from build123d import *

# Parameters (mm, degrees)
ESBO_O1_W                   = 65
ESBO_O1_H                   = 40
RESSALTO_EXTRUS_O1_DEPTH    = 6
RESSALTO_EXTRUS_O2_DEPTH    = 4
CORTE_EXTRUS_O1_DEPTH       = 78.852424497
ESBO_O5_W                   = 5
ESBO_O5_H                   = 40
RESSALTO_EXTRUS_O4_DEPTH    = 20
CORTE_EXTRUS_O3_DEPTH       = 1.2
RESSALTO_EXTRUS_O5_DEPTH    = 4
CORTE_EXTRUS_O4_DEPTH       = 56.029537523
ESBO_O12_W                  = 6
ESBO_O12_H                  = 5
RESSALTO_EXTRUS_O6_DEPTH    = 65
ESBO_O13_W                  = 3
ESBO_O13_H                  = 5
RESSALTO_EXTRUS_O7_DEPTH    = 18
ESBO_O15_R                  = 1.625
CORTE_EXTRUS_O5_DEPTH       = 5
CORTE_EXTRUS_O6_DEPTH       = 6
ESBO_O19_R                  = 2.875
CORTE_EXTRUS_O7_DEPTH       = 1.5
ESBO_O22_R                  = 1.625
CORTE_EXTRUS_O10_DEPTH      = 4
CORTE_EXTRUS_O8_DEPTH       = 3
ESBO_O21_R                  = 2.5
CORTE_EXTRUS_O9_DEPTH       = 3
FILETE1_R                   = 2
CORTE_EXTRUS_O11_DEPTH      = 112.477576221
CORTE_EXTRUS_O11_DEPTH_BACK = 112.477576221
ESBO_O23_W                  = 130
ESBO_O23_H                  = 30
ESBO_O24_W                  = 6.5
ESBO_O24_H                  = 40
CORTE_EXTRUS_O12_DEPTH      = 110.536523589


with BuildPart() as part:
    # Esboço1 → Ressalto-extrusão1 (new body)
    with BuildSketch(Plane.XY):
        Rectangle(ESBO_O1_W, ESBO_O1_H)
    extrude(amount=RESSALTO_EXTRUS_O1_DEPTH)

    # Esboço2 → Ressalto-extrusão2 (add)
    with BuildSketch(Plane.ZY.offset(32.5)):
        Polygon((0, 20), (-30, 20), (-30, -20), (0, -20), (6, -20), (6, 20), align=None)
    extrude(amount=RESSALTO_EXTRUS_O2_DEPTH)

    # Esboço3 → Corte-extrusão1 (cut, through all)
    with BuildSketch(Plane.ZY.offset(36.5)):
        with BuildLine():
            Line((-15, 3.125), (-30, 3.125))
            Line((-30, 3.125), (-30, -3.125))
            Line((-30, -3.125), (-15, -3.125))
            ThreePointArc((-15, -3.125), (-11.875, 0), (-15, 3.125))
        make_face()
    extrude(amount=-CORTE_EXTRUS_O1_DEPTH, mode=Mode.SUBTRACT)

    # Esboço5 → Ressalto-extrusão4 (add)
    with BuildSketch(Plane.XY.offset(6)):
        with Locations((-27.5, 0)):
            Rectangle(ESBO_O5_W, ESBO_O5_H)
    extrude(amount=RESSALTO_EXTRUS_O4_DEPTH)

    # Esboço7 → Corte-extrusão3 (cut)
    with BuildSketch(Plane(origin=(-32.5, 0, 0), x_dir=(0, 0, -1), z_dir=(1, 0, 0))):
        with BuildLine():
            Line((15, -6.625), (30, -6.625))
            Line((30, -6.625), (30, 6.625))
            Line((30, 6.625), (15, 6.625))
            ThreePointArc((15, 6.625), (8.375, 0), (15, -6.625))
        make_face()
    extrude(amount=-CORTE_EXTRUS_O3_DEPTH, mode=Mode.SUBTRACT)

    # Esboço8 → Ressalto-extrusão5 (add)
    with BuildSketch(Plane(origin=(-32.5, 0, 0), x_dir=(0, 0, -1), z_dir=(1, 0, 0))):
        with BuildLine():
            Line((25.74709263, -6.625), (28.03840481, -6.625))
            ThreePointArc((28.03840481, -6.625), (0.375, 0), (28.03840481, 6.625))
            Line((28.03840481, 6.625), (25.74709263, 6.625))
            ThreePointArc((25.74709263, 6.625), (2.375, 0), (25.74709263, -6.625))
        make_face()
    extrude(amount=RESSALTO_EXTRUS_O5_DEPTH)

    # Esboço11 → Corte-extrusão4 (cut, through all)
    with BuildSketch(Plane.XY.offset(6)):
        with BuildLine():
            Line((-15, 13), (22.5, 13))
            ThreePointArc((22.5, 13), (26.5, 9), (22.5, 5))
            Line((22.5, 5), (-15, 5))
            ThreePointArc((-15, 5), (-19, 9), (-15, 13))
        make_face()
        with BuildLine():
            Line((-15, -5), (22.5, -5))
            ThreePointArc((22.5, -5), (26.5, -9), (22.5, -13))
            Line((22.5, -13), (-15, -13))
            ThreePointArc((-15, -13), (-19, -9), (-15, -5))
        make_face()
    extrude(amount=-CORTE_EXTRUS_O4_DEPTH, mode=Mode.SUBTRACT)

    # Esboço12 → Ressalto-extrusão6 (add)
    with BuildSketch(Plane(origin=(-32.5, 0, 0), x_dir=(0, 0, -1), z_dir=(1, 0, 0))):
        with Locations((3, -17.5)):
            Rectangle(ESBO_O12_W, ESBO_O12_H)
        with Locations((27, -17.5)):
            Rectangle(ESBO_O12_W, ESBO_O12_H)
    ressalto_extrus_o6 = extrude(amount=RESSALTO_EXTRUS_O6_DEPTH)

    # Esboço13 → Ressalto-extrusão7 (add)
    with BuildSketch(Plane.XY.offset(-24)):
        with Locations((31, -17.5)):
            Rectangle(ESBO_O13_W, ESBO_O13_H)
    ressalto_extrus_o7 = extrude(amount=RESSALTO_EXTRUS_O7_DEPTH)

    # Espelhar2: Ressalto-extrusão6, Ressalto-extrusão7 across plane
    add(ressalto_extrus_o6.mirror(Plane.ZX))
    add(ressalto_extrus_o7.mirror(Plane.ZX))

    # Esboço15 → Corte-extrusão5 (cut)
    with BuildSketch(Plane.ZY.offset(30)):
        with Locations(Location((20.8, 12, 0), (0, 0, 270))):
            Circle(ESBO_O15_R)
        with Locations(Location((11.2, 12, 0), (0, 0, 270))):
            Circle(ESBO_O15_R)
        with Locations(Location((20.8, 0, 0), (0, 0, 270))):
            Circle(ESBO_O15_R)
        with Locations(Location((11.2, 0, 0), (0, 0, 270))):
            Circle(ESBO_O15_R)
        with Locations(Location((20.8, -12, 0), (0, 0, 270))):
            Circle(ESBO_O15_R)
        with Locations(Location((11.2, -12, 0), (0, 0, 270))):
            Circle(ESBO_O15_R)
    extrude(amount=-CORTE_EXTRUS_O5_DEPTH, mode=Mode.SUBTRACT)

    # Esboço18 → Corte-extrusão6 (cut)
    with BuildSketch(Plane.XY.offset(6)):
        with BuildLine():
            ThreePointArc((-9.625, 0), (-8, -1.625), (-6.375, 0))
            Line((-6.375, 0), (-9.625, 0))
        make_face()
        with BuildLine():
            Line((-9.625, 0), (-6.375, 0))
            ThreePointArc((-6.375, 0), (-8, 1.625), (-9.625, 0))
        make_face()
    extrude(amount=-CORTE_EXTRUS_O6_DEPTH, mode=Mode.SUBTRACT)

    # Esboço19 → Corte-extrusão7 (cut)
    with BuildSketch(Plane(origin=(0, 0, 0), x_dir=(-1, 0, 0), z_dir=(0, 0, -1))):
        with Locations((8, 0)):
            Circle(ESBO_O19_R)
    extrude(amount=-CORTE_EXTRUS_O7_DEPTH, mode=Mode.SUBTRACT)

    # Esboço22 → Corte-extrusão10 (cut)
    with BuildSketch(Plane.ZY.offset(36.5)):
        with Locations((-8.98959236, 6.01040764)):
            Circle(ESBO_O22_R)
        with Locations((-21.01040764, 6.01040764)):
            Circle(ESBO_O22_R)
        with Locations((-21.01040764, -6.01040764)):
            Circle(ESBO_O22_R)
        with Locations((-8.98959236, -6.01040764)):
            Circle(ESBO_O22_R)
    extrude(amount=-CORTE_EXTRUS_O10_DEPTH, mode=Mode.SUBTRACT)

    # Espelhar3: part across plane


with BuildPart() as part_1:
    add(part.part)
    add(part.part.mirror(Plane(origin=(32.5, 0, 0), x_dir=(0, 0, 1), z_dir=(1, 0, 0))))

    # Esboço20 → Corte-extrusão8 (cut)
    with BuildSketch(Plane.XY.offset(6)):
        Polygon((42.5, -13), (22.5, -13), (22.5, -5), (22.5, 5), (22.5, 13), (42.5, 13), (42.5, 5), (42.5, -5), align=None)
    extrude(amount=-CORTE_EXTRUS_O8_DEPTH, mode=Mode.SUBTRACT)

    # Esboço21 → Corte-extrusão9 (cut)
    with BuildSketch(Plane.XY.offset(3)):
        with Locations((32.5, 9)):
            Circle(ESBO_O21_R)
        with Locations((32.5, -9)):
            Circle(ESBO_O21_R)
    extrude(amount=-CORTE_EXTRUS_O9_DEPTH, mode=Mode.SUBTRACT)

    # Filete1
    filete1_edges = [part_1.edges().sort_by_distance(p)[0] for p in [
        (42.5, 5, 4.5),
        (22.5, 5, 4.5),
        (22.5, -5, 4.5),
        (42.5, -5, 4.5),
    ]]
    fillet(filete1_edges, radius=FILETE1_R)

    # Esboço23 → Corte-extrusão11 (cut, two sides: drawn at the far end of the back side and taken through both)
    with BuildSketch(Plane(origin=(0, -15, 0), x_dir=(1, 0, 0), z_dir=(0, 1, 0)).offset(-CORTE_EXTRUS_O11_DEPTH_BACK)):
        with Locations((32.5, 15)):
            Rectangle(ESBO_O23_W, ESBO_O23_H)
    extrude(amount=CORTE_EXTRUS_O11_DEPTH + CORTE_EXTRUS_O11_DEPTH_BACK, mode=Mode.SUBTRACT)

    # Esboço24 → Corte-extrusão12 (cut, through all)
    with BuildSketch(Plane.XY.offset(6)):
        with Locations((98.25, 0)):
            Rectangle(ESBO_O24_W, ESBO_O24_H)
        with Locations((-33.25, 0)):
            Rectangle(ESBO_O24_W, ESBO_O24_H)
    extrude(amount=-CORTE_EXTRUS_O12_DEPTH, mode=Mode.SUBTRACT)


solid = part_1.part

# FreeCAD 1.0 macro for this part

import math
import FreeCAD as App
import Part
import Sketcher


def edges_at(feature, points):
    """Names of the edges that pass closest to the given points."""
    edges = feature.Shape.Edges
    near = lambda p: min(range(len(edges)), key=lambda i: edges[i].distToShape(Part.Vertex(*p))[0])
    return sorted({f"Edge{near(p) + 1}" for p in points})


def add_polygon(sketch, points):
    """Adds a closed chain of lines whose ends are joined by coincident constraints."""
    first, n = sketch.GeometryCount, len(points)
    for a, b in zip(points, points[1:] + points[:1]):
        sketch.addGeometry(Part.LineSegment(App.Vector(*a, 0), App.Vector(*b, 0)), False)
    for i in range(n):
        sketch.addConstraint(Sketcher.Constraint("Coincident", first + i, 2, first + (i + 1) % n, 1))

doc = App.newDocument("Part")
params = doc.addObject("Spreadsheet::Sheet", "Params")
for row, (alias, value) in enumerate([
    ("sketch1_width", "65 mm"),
    ("sketch1_height", "40 mm"),
    ("pad1_length", "6 mm"),
    ("sketch2_width", "40 mm"),
    ("sketch2_height", "36 mm"),
    ("pad2_length", "4 mm"),
    ("sketch3_height", "15 mm"),
    ("sketch4_width", "5 mm"),
    ("sketch4_height", "40 mm"),
    ("pad3_length", "20 mm"),
    ("sketch5_height", "15 mm"),
    ("pocket2_length", "1.2 mm"),
    ("pad4_length", "4 mm"),
    ("sketch7_radius", "4 mm"),
    ("sketch7_width", "37.5 mm"),
    ("sketch8_width", "5 mm"),
    ("sketch8_height", "6 mm"),
    ("pad5_length", "65 mm"),
    ("sketch9_width", "3 mm"),
    ("sketch9_height", "5 mm"),
    ("pad6_length", "18 mm"),
    ("sketch10_diameter", "3.25 mm"),
    ("pocket4_length", "5 mm"),
    ("sketch11_diameter", "3.25 mm"),
    ("pocket5_length", "6 mm"),
    ("sketch12_diameter", "5.75 mm"),
    ("pocket6_length", "1.5 mm"),
    ("sketch13_diameter", "3.25 mm"),
    ("pocket7_length", "4 mm"),
    ("sketch14_width", "20 mm"),
    ("sketch14_height", "26 mm"),
    ("pocket8_length", "3 mm"),
    ("sketch15_diameter", "5 mm"),
    ("pocket9_length", "3 mm"),
    ("fillet_radius", "2 mm"),
    ("sketch16_width", "130 mm"),
    ("sketch16_height", "30 mm"),
    ("sketch17_height", "40 mm"),
    ("sketch17_width", "6.5 mm"),
], start=1):
    params.set(f"A{row}", alias)
    params.set(f"B{row}", "=" + value)
    params.setAlias(f"B{row}", alias)

body = doc.addObject("PartDesign::Body", "Body")

# Sketch on XY plane
sketch1 = body.newObject("Sketcher::SketchObject", "Sketch")
sketch1.AttachmentSupport = (doc.getObject("XY_Plane"), [""])
sketch1.MapMode = "FlatFace"
add_polygon(sketch1, [(-32, 20), (-32, -20), (32, -20), (32, 20)])  # lines 0-3
sketch1.addConstraint(Sketcher.Constraint("Vertical", 0))
sketch1.addConstraint(Sketcher.Constraint("Horizontal", 1))
sketch1.addConstraint(Sketcher.Constraint("Vertical", 2))
sketch1.addConstraint(Sketcher.Constraint("Horizontal", 3))
sketch1.addConstraint(Sketcher.Constraint("Symmetric", 0, 2, 2, 2, -1, 1))
sketch1.addConstraint(Sketcher.Constraint("DistanceX", 1, 1, 1, 2, 65.0))
sketch1.addConstraint(Sketcher.Constraint("DistanceY", 0, 2, 0, 1, 40.0))
sketch1.setExpression("Constraints[9]", "Params.sketch1_width")
sketch1.setExpression("Constraints[10]", "Params.sketch1_height")
pad1 = body.newObject("PartDesign::Pad", "Pad")
pad1.Profile = sketch1
pad1.setExpression("Length", "Params.pad1_length")

# Sketch on YZ plane
sketch2 = body.newObject("Sketcher::SketchObject", "Sketch001")
sketch2.AttachmentSupport = (doc.getObject("YZ_Plane"), [""])
sketch2.MapMode = "FlatFace"
sketch2.AttachmentOffset = App.Placement(App.Vector(0, 0, -32.5), App.Rotation())
add_polygon(sketch2, [(20, -30), (-20, -30), (-20, 6), (20, 6)])  # lines 0-3
sketch2.addConstraint(Sketcher.Constraint("Horizontal", 0))
sketch2.addConstraint(Sketcher.Constraint("Vertical", 1))
sketch2.addConstraint(Sketcher.Constraint("Horizontal", 2))
sketch2.addConstraint(Sketcher.Constraint("Vertical", 3))
sketch2.addConstraint(Sketcher.Constraint("DistanceX", 0, 2, 0, 1, 40.0))
sketch2.addConstraint(Sketcher.Constraint("DistanceY", 1, 1, 1, 2, 36.0))
sketch2.addConstraint(Sketcher.Constraint("DistanceX", 0, 2, -1, 1, 20.0))
sketch2.addConstraint(Sketcher.Constraint("DistanceY", 0, 2, -1, 1, 30.0))
sketch2.setExpression("Constraints[8]", "Params.sketch2_width")
sketch2.setExpression("Constraints[9]", "Params.sketch2_height")
pad2 = body.newObject("PartDesign::Pad", "Pad001")
pad2.Profile = sketch2
pad2.setExpression("Length", "Params.pad2_length")
pad2.Reversed = True

# Sketch on YZ plane
sketch3 = body.newObject("Sketcher::SketchObject", "Sketch002")
sketch3.AttachmentSupport = (doc.getObject("YZ_Plane"), [""])
sketch3.MapMode = "FlatFace"
sketch3.AttachmentOffset = App.Placement(App.Vector(0, 0, -36.5), App.Rotation())
sketch3.addGeometry(Part.LineSegment(App.Vector(3.1, -15, 0), App.Vector(3.1, -30, 0)), False)
sketch3.addGeometry(Part.LineSegment(App.Vector(3.1, -30, 0), App.Vector(-3.1, -30, 0)), False)
sketch3.addGeometry(Part.LineSegment(App.Vector(-3.1, -30, 0), App.Vector(-3.1, -15, 0)), False)
sketch3.addGeometry(Part.ArcOfCircle(Part.Circle(App.Vector(0, -15, 0), App.Vector(0, 0, 1), 3.1), math.radians(0), math.radians(180)), False)
sketch3.addConstraint(Sketcher.Constraint("Coincident", 0, 2, 1, 1))
sketch3.addConstraint(Sketcher.Constraint("Coincident", 1, 2, 2, 1))
sketch3.addConstraint(Sketcher.Constraint("Tangent", 2, 2, 3, 2))
sketch3.addConstraint(Sketcher.Constraint("Tangent", 3, 1, 0, 1))
sketch3.addConstraint(Sketcher.Constraint("Vertical", 0))
sketch3.addConstraint(Sketcher.Constraint("Horizontal", 1))
sketch3.addConstraint(Sketcher.Constraint("Vertical", 2))
sketch3.addConstraint(Sketcher.Constraint("PointOnObject", 3, 3, -2))
sketch3.addConstraint(Sketcher.Constraint("DistanceY", 0, 2, 0, 1, 15.0))
sketch3.addConstraint(Sketcher.Constraint("DistanceY", 3, 3, -1, 1, 15.0))
sketch3.addConstraint(Sketcher.Constraint("Radius", 3, 3.125))
sketch3.setExpression("Constraints[8]", "Params.sketch3_height")
pocket1 = body.newObject("PartDesign::Pocket", "Pocket")
pocket1.Profile = sketch3
pocket1.Type = "ThroughAll"
pocket1.Reversed = True

# Sketch on XY plane
sketch4 = body.newObject("Sketcher::SketchObject", "Sketch003")
sketch4.AttachmentSupport = (doc.getObject("XY_Plane"), [""])
sketch4.MapMode = "FlatFace"
sketch4.AttachmentOffset = App.Placement(App.Vector(0, 0, 6), App.Rotation())
add_polygon(sketch4, [(-30, 20), (-30, -20), (-25, -20), (-25, 20)])  # lines 0-3
sketch4.addConstraint(Sketcher.Constraint("Vertical", 0))
sketch4.addConstraint(Sketcher.Constraint("Horizontal", 1))
sketch4.addConstraint(Sketcher.Constraint("Vertical", 2))
sketch4.addConstraint(Sketcher.Constraint("Horizontal", 3))
sketch4.addConstraint(Sketcher.Constraint("DistanceX", 1, 1, 1, 2, 5.0))
sketch4.addConstraint(Sketcher.Constraint("DistanceY", 0, 2, 0, 1, 40.0))
sketch4.addConstraint(Sketcher.Constraint("DistanceX", 0, 2, -1, 1, 30.0))
sketch4.addConstraint(Sketcher.Constraint("DistanceY", 0, 2, -1, 1, 20.0))
sketch4.setExpression("Constraints[8]", "Params.sketch4_width")
sketch4.setExpression("Constraints[9]", "Params.sketch4_height")
pad3 = body.newObject("PartDesign::Pad", "Pad002")
pad3.Profile = sketch4
pad3.setExpression("Length", "Params.pad3_length")

# Sketch on YZ plane
sketch5 = body.newObject("Sketcher::SketchObject", "Sketch004")
sketch5.AttachmentSupport = (doc.getObject("YZ_Plane"), [""])
sketch5.MapMode = "FlatFace"
sketch5.AttachmentOffset = App.Placement(App.Vector(0, 0, -32.5), App.Rotation())
sketch5.addGeometry(Part.LineSegment(App.Vector(-7, -15, 0), App.Vector(-7, -30, 0)), False)
sketch5.addGeometry(Part.LineSegment(App.Vector(-7, -30, 0), App.Vector(7, -30, 0)), False)
sketch5.addGeometry(Part.LineSegment(App.Vector(7, -30, 0), App.Vector(7, -15, 0)), False)
sketch5.addGeometry(Part.ArcOfCircle(Part.Circle(App.Vector(0, -15, 0), App.Vector(0, 0, 1), 7), math.radians(0), math.radians(180)), False)
sketch5.addConstraint(Sketcher.Constraint("Coincident", 0, 2, 1, 1))
sketch5.addConstraint(Sketcher.Constraint("Coincident", 1, 2, 2, 1))
sketch5.addConstraint(Sketcher.Constraint("Tangent", 2, 2, 3, 1))
sketch5.addConstraint(Sketcher.Constraint("Tangent", 3, 2, 0, 1))
sketch5.addConstraint(Sketcher.Constraint("Vertical", 0))
sketch5.addConstraint(Sketcher.Constraint("Horizontal", 1))
sketch5.addConstraint(Sketcher.Constraint("Vertical", 2))
sketch5.addConstraint(Sketcher.Constraint("PointOnObject", 3, 3, -2))
sketch5.addConstraint(Sketcher.Constraint("DistanceY", 0, 2, 0, 1, 15.0))
sketch5.addConstraint(Sketcher.Constraint("DistanceY", 3, 3, -1, 1, 15.0))
sketch5.addConstraint(Sketcher.Constraint("Radius", 3, 6.625))
sketch5.setExpression("Constraints[8]", "Params.sketch5_height")
pocket2 = body.newObject("PartDesign::Pocket", "Pocket001")
pocket2.Profile = sketch5
pocket2.setExpression("Length", "Params.pocket2_length")

# Sketch on YZ plane
sketch6 = body.newObject("Sketcher::SketchObject", "Sketch005")
sketch6.AttachmentSupport = (doc.getObject("YZ_Plane"), [""])
sketch6.MapMode = "FlatFace"
sketch6.AttachmentOffset = App.Placement(App.Vector(0, 0, -32.5), App.Rotation())
sketch6.addGeometry(Part.LineSegment(App.Vector(-6.6, -28, 0), App.Vector(-6.6, -25.7, 0)), False)
sketch6.addGeometry(Part.ArcOfCircle(Part.Circle(App.Vector(0, -15, 0), App.Vector(0, 0, 1), 12.6), math.radians(-58), math.radians(238)), False)
sketch6.addGeometry(Part.LineSegment(App.Vector(6.6, -25.7, 0), App.Vector(6.6, -28, 0)), False)
sketch6.addGeometry(Part.ArcOfCircle(Part.Circle(App.Vector(0, -15, 0), App.Vector(0, 0, 1), 14.6), math.radians(-63), math.radians(243)), False)
sketch6.addConstraint(Sketcher.Constraint("Coincident", 0, 2, 1, 2))
sketch6.addConstraint(Sketcher.Constraint("Coincident", 1, 1, 2, 1))
sketch6.addConstraint(Sketcher.Constraint("Coincident", 2, 2, 3, 1))
sketch6.addConstraint(Sketcher.Constraint("Coincident", 3, 2, 0, 1))
sketch6.addConstraint(Sketcher.Constraint("Vertical", 0))
sketch6.addConstraint(Sketcher.Constraint("Vertical", 2))
sketch6.addConstraint(Sketcher.Constraint("Coincident", 3, 3, 1, 3))
sketch6.addConstraint(Sketcher.Constraint("Symmetric", 0, 2, 1, 1, -2))
sketch6.addConstraint(Sketcher.Constraint("DistanceY", 1, 3, -1, 1, 15.0))
sketch6.addConstraint(Sketcher.Constraint("Radius", 1, 12.625))
sketch6.addConstraint(Sketcher.Constraint("Radius", 3, 14.625))
sketch6.addConstraint(Sketcher.Constraint("DistanceX", 0, 2, 1, 1, 13.25))
pad4 = body.newObject("PartDesign::Pad", "Pad003")
pad4.Profile = sketch6
pad4.setExpression("Length", "Params.pad4_length")

# Sketch on XY plane
sketch7 = body.newObject("Sketcher::SketchObject", "Sketch006")
sketch7.AttachmentSupport = (doc.getObject("XY_Plane"), [""])
sketch7.MapMode = "FlatFace"
sketch7.AttachmentOffset = App.Placement(App.Vector(0, 0, 6), App.Rotation())
sketch7.addGeometry(Part.LineSegment(App.Vector(22.5, 13, 0), App.Vector(-15, 13, 0)), False)
sketch7.addGeometry(Part.ArcOfCircle(Part.Circle(App.Vector(-15, 9, 0), App.Vector(0, 0, 1), 4), math.radians(90), math.radians(270)), False)
sketch7.addGeometry(Part.LineSegment(App.Vector(-15, 5, 0), App.Vector(22.5, 5, 0)), False)
sketch7.addGeometry(Part.ArcOfCircle(Part.Circle(App.Vector(22.5, 9, 0), App.Vector(0, 0, 1), 4), math.radians(-90), math.radians(90)), False)
sketch7.addGeometry(Part.LineSegment(App.Vector(22.5, -5, 0), App.Vector(-15, -5, 0)), False)
sketch7.addGeometry(Part.ArcOfCircle(Part.Circle(App.Vector(-15, -9, 0), App.Vector(0, 0, 1), 4), math.radians(90), math.radians(270)), False)
sketch7.addGeometry(Part.LineSegment(App.Vector(-15, -13, 0), App.Vector(22.5, -13, 0)), False)
sketch7.addGeometry(Part.ArcOfCircle(Part.Circle(App.Vector(22.5, -9, 0), App.Vector(0, 0, 1), 4), math.radians(-90), math.radians(90)), False)
sketch7.addConstraint(Sketcher.Constraint("Tangent", 0, 2, 1, 1))
sketch7.addConstraint(Sketcher.Constraint("Tangent", 1, 2, 2, 1))
sketch7.addConstraint(Sketcher.Constraint("Tangent", 2, 2, 3, 1))
sketch7.addConstraint(Sketcher.Constraint("Tangent", 3, 2, 0, 1))
sketch7.addConstraint(Sketcher.Constraint("Tangent", 4, 2, 5, 1))
sketch7.addConstraint(Sketcher.Constraint("Tangent", 5, 2, 6, 1))
sketch7.addConstraint(Sketcher.Constraint("Tangent", 6, 2, 7, 1))
sketch7.addConstraint(Sketcher.Constraint("Tangent", 7, 2, 4, 1))
sketch7.addConstraint(Sketcher.Constraint("Horizontal", 0))
sketch7.addConstraint(Sketcher.Constraint("Horizontal", 2))
sketch7.addConstraint(Sketcher.Constraint("Horizontal", 4))
sketch7.addConstraint(Sketcher.Constraint("Horizontal", 6))
sketch7.addConstraint(Sketcher.Constraint("Equal", 3, 5))
sketch7.addConstraint(Sketcher.Constraint("Symmetric", 1, 3, 5, 3, -1))
sketch7.addConstraint(Sketcher.Constraint("Vertical", 3, 3, 7, 3))
sketch7.addConstraint(Sketcher.Constraint("Radius", 1, 4.0))
sketch7.addConstraint(Sketcher.Constraint("DistanceX", 0, 2, 0, 1, 37.5))
sketch7.addConstraint(Sketcher.Constraint("DistanceX", 1, 3, -1, 1, 15.0))
sketch7.addConstraint(Sketcher.Constraint("DistanceY", -1, 1, 1, 3, 9.0))
sketch7.setExpression("Constraints[15]", "Params.sketch7_radius")
sketch7.setExpression("Constraints[16]", "Params.sketch7_width")
pocket3 = body.newObject("PartDesign::Pocket", "Pocket002")
pocket3.Profile = sketch7
pocket3.Type = "ThroughAll"

# Sketch on YZ plane
sketch8 = body.newObject("Sketcher::SketchObject", "Sketch007")
sketch8.AttachmentSupport = (doc.getObject("YZ_Plane"), [""])
sketch8.MapMode = "FlatFace"
sketch8.AttachmentOffset = App.Placement(App.Vector(0, 0, -32.5), App.Rotation())
add_polygon(sketch8, [(-15, 0), (-20, 0), (-20, -6), (-15, -6)])  # lines 0-3
add_polygon(sketch8, [(-15, -24), (-20, -24), (-20, -30), (-15, -30)])  # lines 4-7
sketch8.addConstraint(Sketcher.Constraint("Horizontal", 0))
sketch8.addConstraint(Sketcher.Constraint("Vertical", 1))
sketch8.addConstraint(Sketcher.Constraint("Horizontal", 2))
sketch8.addConstraint(Sketcher.Constraint("Vertical", 3))
sketch8.addConstraint(Sketcher.Constraint("Horizontal", 4))
sketch8.addConstraint(Sketcher.Constraint("Vertical", 5))
sketch8.addConstraint(Sketcher.Constraint("Horizontal", 6))
sketch8.addConstraint(Sketcher.Constraint("Vertical", 7))
sketch8.addConstraint(Sketcher.Constraint("PointOnObject", 0, 2, -1))
sketch8.addConstraint(Sketcher.Constraint("Vertical", 1, 2, 4, 2))
sketch8.addConstraint(Sketcher.Constraint("Vertical", 3, 2, 6, 2))
sketch8.addConstraint(Sketcher.Constraint("Equal", 3, 5))
sketch8.addConstraint(Sketcher.Constraint("DistanceX", 0, 2, 0, 1, 5.0))
sketch8.addConstraint(Sketcher.Constraint("DistanceY", 1, 2, 1, 1, 6.0))
sketch8.addConstraint(Sketcher.Constraint("DistanceX", 0, 2, -1, 1, 20.0))
sketch8.addConstraint(Sketcher.Constraint("DistanceY", 4, 2, -1, 1, 24.0))
sketch8.setExpression("Constraints[20]", "Params.sketch8_width")
sketch8.setExpression("Constraints[21]", "Params.sketch8_height")
pad5 = body.newObject("PartDesign::Pad", "Pad004")
pad5.Profile = sketch8
pad5.setExpression("Length", "Params.pad5_length")

# Sketch on XY plane
sketch9 = body.newObject("Sketcher::SketchObject", "Sketch008")
sketch9.AttachmentSupport = (doc.getObject("XY_Plane"), [""])
sketch9.MapMode = "FlatFace"
sketch9.AttachmentOffset = App.Placement(App.Vector(0, 0, -24), App.Rotation())
add_polygon(sketch9, [(29.5, -15), (29.5, -20), (32.5, -20), (32.5, -15)])  # lines 0-3
sketch9.addConstraint(Sketcher.Constraint("Vertical", 0))
sketch9.addConstraint(Sketcher.Constraint("Horizontal", 1))
sketch9.addConstraint(Sketcher.Constraint("Vertical", 2))
sketch9.addConstraint(Sketcher.Constraint("Horizontal", 3))
sketch9.addConstraint(Sketcher.Constraint("DistanceX", 1, 1, 1, 2, 3.0))
sketch9.addConstraint(Sketcher.Constraint("DistanceY", 0, 2, 0, 1, 5.0))
sketch9.addConstraint(Sketcher.Constraint("DistanceY", 0, 2, -1, 1, 20.0))
sketch9.addConstraint(Sketcher.Constraint("DistanceX", -1, 1, 0, 2, 29.5))
sketch9.setExpression("Constraints[8]", "Params.sketch9_width")
sketch9.setExpression("Constraints[9]", "Params.sketch9_height")
pad6 = body.newObject("PartDesign::Pad", "Pad005")
pad6.Profile = sketch9
pad6.setExpression("Length", "Params.pad6_length")
doc.recompute()

mirrored = body.newObject("PartDesign::Mirrored", "Mirrored")
mirrored.Originals = [pad5, pad6]
mirrored.MirrorPlane = (doc.getObject("XZ_Plane"), [""])
body.Tip = mirrored

# Sketch on YZ plane
sketch10 = body.newObject("Sketcher::SketchObject", "Sketch009")
sketch10.AttachmentSupport = (doc.getObject("YZ_Plane"), [""])
sketch10.MapMode = "FlatFace"
sketch10.AttachmentOffset = App.Placement(App.Vector(0, 0, -30), App.Rotation())
sketch10.addGeometry(Part.Circle(App.Vector(12, 20.8, 0), App.Vector(0, 0, 1), 1.6), False)
sketch10.addGeometry(Part.Circle(App.Vector(12, 11.2, 0), App.Vector(0, 0, 1), 1.6), False)
sketch10.addGeometry(Part.Circle(App.Vector(0, 20.8, 0), App.Vector(0, 0, 1), 1.6), False)
sketch10.addGeometry(Part.Circle(App.Vector(0, 11.2, 0), App.Vector(0, 0, 1), 1.6), False)
sketch10.addGeometry(Part.Circle(App.Vector(-12, 20.8, 0), App.Vector(0, 0, 1), 1.6), False)
sketch10.addGeometry(Part.Circle(App.Vector(-12, 11.2, 0), App.Vector(0, 0, 1), 1.6), False)
sketch10.addConstraint(Sketcher.Constraint("Equal", 0, 1))
sketch10.addConstraint(Sketcher.Constraint("Equal", 1, 2))
sketch10.addConstraint(Sketcher.Constraint("Equal", 2, 3))
sketch10.addConstraint(Sketcher.Constraint("Equal", 3, 4))
sketch10.addConstraint(Sketcher.Constraint("Equal", 4, 5))
sketch10.addConstraint(Sketcher.Constraint("Symmetric", 0, 3, 4, 3, -2))
sketch10.addConstraint(Sketcher.Constraint("Symmetric", 1, 3, 5, 3, -2))
sketch10.addConstraint(Sketcher.Constraint("PointOnObject", 2, 3, -2))
sketch10.addConstraint(Sketcher.Constraint("PointOnObject", 3, 3, -2))
sketch10.addConstraint(Sketcher.Constraint("Horizontal", 0, 3, 2, 3))
sketch10.addConstraint(Sketcher.Constraint("Horizontal", 1, 3, 3, 3))
sketch10.addConstraint(Sketcher.Constraint("Vertical", 0, 3, 1, 3))
sketch10.addConstraint(Sketcher.Constraint("Diameter", 0, 3.25))
sketch10.addConstraint(Sketcher.Constraint("DistanceX", -1, 1, 0, 3, 12.0))
sketch10.addConstraint(Sketcher.Constraint("DistanceY", -1, 1, 0, 3, 20.8))
sketch10.addConstraint(Sketcher.Constraint("DistanceY", -1, 1, 1, 3, 11.2))
sketch10.setExpression("Constraints[12]", "Params.sketch10_diameter")
pocket4 = body.newObject("PartDesign::Pocket", "Pocket003")
pocket4.Profile = sketch10
pocket4.setExpression("Length", "Params.pocket4_length")
pocket4.Reversed = True

# Sketch on XY plane
sketch11 = body.newObject("Sketcher::SketchObject", "Sketch010")
sketch11.AttachmentSupport = (doc.getObject("XY_Plane"), [""])
sketch11.MapMode = "FlatFace"
sketch11.AttachmentOffset = App.Placement(App.Vector(0, 0, 6), App.Rotation())
sketch11.addGeometry(Part.Circle(App.Vector(-8, 0, 0), App.Vector(0, 0, 1), 1.6), False)
sketch11.addConstraint(Sketcher.Constraint("PointOnObject", 0, 3, -1))
sketch11.addConstraint(Sketcher.Constraint("Diameter", 0, 3.25))
sketch11.addConstraint(Sketcher.Constraint("DistanceX", 0, 3, -1, 1, 8.0))
sketch11.setExpression("Constraints[1]", "Params.sketch11_diameter")
pocket5 = body.newObject("PartDesign::Pocket", "Pocket004")
pocket5.Profile = sketch11
pocket5.setExpression("Length", "Params.pocket5_length")

# Sketch on XY plane
sketch12 = body.newObject("Sketcher::SketchObject", "Sketch011")
sketch12.AttachmentSupport = (doc.getObject("XY_Plane"), [""])
sketch12.MapMode = "FlatFace"
sketch12.addGeometry(Part.Circle(App.Vector(-8, 0, 0), App.Vector(0, 0, 1), 2.9), False)
sketch12.addConstraint(Sketcher.Constraint("PointOnObject", 0, 3, -1))
sketch12.addConstraint(Sketcher.Constraint("Diameter", 0, 5.75))
sketch12.addConstraint(Sketcher.Constraint("DistanceX", 0, 3, -1, 1, 8.0))
sketch12.setExpression("Constraints[1]", "Params.sketch12_diameter")
pocket6 = body.newObject("PartDesign::Pocket", "Pocket005")
pocket6.Profile = sketch12
pocket6.setExpression("Length", "Params.pocket6_length")
pocket6.Reversed = True

# Sketch on YZ plane
sketch13 = body.newObject("Sketcher::SketchObject", "Sketch012")
sketch13.AttachmentSupport = (doc.getObject("YZ_Plane"), [""])
sketch13.MapMode = "FlatFace"
sketch13.AttachmentOffset = App.Placement(App.Vector(0, 0, -36.5), App.Rotation())
sketch13.addGeometry(Part.Circle(App.Vector(6, -9, 0), App.Vector(0, 0, 1), 1.6), False)
sketch13.addGeometry(Part.Circle(App.Vector(6, -21, 0), App.Vector(0, 0, 1), 1.6), False)
sketch13.addGeometry(Part.Circle(App.Vector(-6, -21, 0), App.Vector(0, 0, 1), 1.6), False)
sketch13.addGeometry(Part.Circle(App.Vector(-6, -9, 0), App.Vector(0, 0, 1), 1.6), False)
sketch13.addConstraint(Sketcher.Constraint("Equal", 0, 1))
sketch13.addConstraint(Sketcher.Constraint("Equal", 1, 2))
sketch13.addConstraint(Sketcher.Constraint("Equal", 2, 3))
sketch13.addConstraint(Sketcher.Constraint("Symmetric", 1, 3, 2, 3, -2))
sketch13.addConstraint(Sketcher.Constraint("Symmetric", 0, 3, 3, 3, -2))
sketch13.addConstraint(Sketcher.Constraint("Vertical", 0, 3, 1, 3))
sketch13.addConstraint(Sketcher.Constraint("Diameter", 0, 3.25))
sketch13.addConstraint(Sketcher.Constraint("DistanceX", -1, 1, 0, 3, 6.010408))
sketch13.addConstraint(Sketcher.Constraint("DistanceY", 0, 3, -1, 1, 8.989592))
sketch13.addConstraint(Sketcher.Constraint("DistanceY", 1, 3, -1, 1, 21.010408))
sketch13.setExpression("Constraints[6]", "Params.sketch13_diameter")
pocket7 = body.newObject("PartDesign::Pocket", "Pocket006")
pocket7.Profile = sketch13
pocket7.setExpression("Length", "Params.pocket7_length")
pocket7.Reversed = True
body2 = doc.addObject("PartDesign::Body", "Body001")
doc.recompute()

body2.BaseFeature = body
doc.recompute()

mirroring = doc.addObject("Part::Mirroring", "Mirroring")
mirroring.Source = body
mirroring.Base = App.Vector(32.5, 0, 0)
mirroring.Normal = App.Vector(1, 0, 0)
body3 = doc.addObject("PartDesign::Body", "Body002")
body3.BaseFeature = mirroring
boolean = body2.newObject("PartDesign::Boolean", "Boolean")
boolean.Type = "Fuse"
boolean.addObjects([body3])
doc.recompute()

# Sketch on XY plane
sketch14 = body2.newObject("Sketcher::SketchObject", "Sketch013")
sketch14.AttachmentSupport = (doc.getObject("XY_Plane001"), [""])
sketch14.MapMode = "FlatFace"
sketch14.AttachmentOffset = App.Placement(App.Vector(0, 0, 6), App.Rotation())
add_polygon(sketch14, [(22, -13), (42, -13), (42, 13), (22, 13)])  # lines 0-3
sketch14.addConstraint(Sketcher.Constraint("Horizontal", 0))
sketch14.addConstraint(Sketcher.Constraint("Vertical", 1))
sketch14.addConstraint(Sketcher.Constraint("Horizontal", 2))
sketch14.addConstraint(Sketcher.Constraint("Vertical", 3))
sketch14.addConstraint(Sketcher.Constraint("DistanceX", 0, 1, 0, 2, 20.0))
sketch14.addConstraint(Sketcher.Constraint("DistanceY", 1, 1, 1, 2, 26.0))
sketch14.addConstraint(Sketcher.Constraint("DistanceY", 0, 2, -1, 1, 13.0))
sketch14.addConstraint(Sketcher.Constraint("DistanceX", -1, 1, 0, 2, 42.5))
sketch14.setExpression("Constraints[8]", "Params.sketch14_width")
sketch14.setExpression("Constraints[9]", "Params.sketch14_height")
pocket8 = body2.newObject("PartDesign::Pocket", "Pocket007")
pocket8.Profile = sketch14
pocket8.setExpression("Length", "Params.pocket8_length")

# Sketch on XY plane
sketch15 = body2.newObject("Sketcher::SketchObject", "Sketch014")
sketch15.AttachmentSupport = (doc.getObject("XY_Plane001"), [""])
sketch15.MapMode = "FlatFace"
sketch15.AttachmentOffset = App.Placement(App.Vector(0, 0, 3), App.Rotation())
sketch15.addGeometry(Part.Circle(App.Vector(32.5, 9, 0), App.Vector(0, 0, 1), 2.5), False)
sketch15.addGeometry(Part.Circle(App.Vector(32.5, -9, 0), App.Vector(0, 0, 1), 2.5), False)
sketch15.addConstraint(Sketcher.Constraint("Equal", 0, 1))
sketch15.addConstraint(Sketcher.Constraint("Symmetric", 0, 3, 1, 3, -1))
sketch15.addConstraint(Sketcher.Constraint("Diameter", 0, 5.0))
sketch15.addConstraint(Sketcher.Constraint("DistanceY", -1, 1, 0, 3, 9.0))
sketch15.addConstraint(Sketcher.Constraint("DistanceX", -1, 1, 0, 3, 32.5))
sketch15.setExpression("Constraints[2]", "Params.sketch15_diameter")
pocket9 = body2.newObject("PartDesign::Pocket", "Pocket008")
pocket9.Profile = sketch15
pocket9.setExpression("Length", "Params.pocket9_length")
doc.recompute()

fillet = body2.newObject("PartDesign::Fillet", "Fillet")
fillet.Base = (pocket9, edges_at(pocket9, [
    (42.5, 5, 4.5),
    (22.5, 5, 4.5),
    (22.5, -5, 4.5),
    (42.5, -5, 4.5),
]))
fillet.setExpression("Radius", "Params.fillet_radius")

# Sketch on XZ plane
sketch16 = body2.newObject("Sketcher::SketchObject", "Sketch015")
sketch16.AttachmentSupport = (doc.getObject("XZ_Plane001"), [""])
sketch16.MapMode = "FlatFace"
sketch16.AttachmentOffset = App.Placement(App.Vector(0, 0, 15), App.Rotation())
add_polygon(sketch16, [(-32, -30), (-32, 0), (98, 0), (98, -30)])  # lines 0-3
sketch16.addConstraint(Sketcher.Constraint("Vertical", 0))
sketch16.addConstraint(Sketcher.Constraint("Horizontal", 1))
sketch16.addConstraint(Sketcher.Constraint("Vertical", 2))
sketch16.addConstraint(Sketcher.Constraint("Horizontal", 3))
sketch16.addConstraint(Sketcher.Constraint("PointOnObject", 0, 2, -1))
sketch16.addConstraint(Sketcher.Constraint("DistanceX", 1, 1, 1, 2, 130.0))
sketch16.addConstraint(Sketcher.Constraint("DistanceY", 0, 1, 0, 2, 30.0))
sketch16.addConstraint(Sketcher.Constraint("DistanceX", 0, 2, -1, 1, 32.5))
sketch16.setExpression("Constraints[9]", "Params.sketch16_width")
sketch16.setExpression("Constraints[10]", "Params.sketch16_height")
pocket10 = body2.newObject("PartDesign::Pocket", "Pocket009")
pocket10.Profile = sketch16
pocket10.Type = "ThroughAll"
pocket10.Midplane = True

# Sketch on XY plane
sketch17 = body2.newObject("Sketcher::SketchObject", "Sketch016")
sketch17.AttachmentSupport = (doc.getObject("XY_Plane001"), [""])
sketch17.MapMode = "FlatFace"
sketch17.AttachmentOffset = App.Placement(App.Vector(0, 0, 6), App.Rotation())
add_polygon(sketch17, [(95, 20), (95, -20), (102, -20), (102, 20)])  # lines 0-3
add_polygon(sketch17, [(-36, 20), (-36, -20), (-30, -20), (-30, 20)])  # lines 4-7
sketch17.addConstraint(Sketcher.Constraint("Vertical", 0))
sketch17.addConstraint(Sketcher.Constraint("Horizontal", 1))
sketch17.addConstraint(Sketcher.Constraint("Vertical", 2))
sketch17.addConstraint(Sketcher.Constraint("Horizontal", 3))
sketch17.addConstraint(Sketcher.Constraint("Vertical", 4))
sketch17.addConstraint(Sketcher.Constraint("Horizontal", 5))
sketch17.addConstraint(Sketcher.Constraint("Vertical", 6))
sketch17.addConstraint(Sketcher.Constraint("Horizontal", 7))
sketch17.addConstraint(Sketcher.Constraint("Horizontal", 1, 2, 4, 2))
sketch17.addConstraint(Sketcher.Constraint("Horizontal", 3, 2, 6, 2))
sketch17.addConstraint(Sketcher.Constraint("Equal", 3, 5))
sketch17.addConstraint(Sketcher.Constraint("DistanceY", 0, 2, 0, 1, 40.0))
sketch17.addConstraint(Sketcher.Constraint("DistanceX", 1, 1, 1, 2, 6.5))
sketch17.addConstraint(Sketcher.Constraint("DistanceX", -1, 1, 0, 2, 95.0))
sketch17.addConstraint(Sketcher.Constraint("DistanceY", 0, 2, -1, 1, 20.0))
sketch17.addConstraint(Sketcher.Constraint("DistanceX", 5, 2, -1, 1, 30.0))
sketch17.setExpression("Constraints[19]", "Params.sketch17_height")
sketch17.setExpression("Constraints[20]", "Params.sketch17_width")
pocket11 = body2.newObject("PartDesign::Pocket", "Pocket010")
pocket11.Profile = sketch17
pocket11.Type = "ThroughAll"
mirroring.Visibility = False

doc.recompute()
